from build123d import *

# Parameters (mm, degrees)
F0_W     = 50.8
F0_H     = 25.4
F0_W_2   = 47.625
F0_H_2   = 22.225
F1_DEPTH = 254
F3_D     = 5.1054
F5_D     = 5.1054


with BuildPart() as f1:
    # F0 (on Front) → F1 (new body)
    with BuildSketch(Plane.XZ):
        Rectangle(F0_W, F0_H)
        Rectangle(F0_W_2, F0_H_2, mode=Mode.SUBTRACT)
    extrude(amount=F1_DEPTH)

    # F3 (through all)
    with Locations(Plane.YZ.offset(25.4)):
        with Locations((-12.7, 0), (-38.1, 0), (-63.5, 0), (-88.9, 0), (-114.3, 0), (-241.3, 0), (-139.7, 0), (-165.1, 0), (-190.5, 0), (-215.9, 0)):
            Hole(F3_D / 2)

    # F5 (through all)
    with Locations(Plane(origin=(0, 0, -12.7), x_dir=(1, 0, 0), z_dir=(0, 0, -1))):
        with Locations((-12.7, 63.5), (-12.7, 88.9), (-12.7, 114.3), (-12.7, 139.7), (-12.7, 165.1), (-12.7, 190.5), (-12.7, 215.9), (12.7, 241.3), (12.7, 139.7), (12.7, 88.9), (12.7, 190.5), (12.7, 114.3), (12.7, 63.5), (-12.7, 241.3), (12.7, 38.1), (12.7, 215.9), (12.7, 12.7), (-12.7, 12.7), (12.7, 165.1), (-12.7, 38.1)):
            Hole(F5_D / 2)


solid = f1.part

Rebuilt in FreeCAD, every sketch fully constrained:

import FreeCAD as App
import Part
import Sketcher
Q = App.Units.Quantity

doc = App.newDocument("Part")
body = doc.addObject("PartDesign::Body", "Body")

# Sketch on XZ plane
sketch1 = doc.addObject("Sketcher::SketchObject", "Sketch")
body.addObject(sketch1)
sketch1.AttachmentSupport = (doc.XZ_Plane, [""])
sketch1.MapMode = "FlatFace"
sketch1.addGeometry([
    Part.LineSegment(App.Vector(-25.4, 12.7, 0), App.Vector(-25.4, -12.7, 0)),  # 0
    Part.LineSegment(App.Vector(-25.4, -12.7, 0), App.Vector(25.4, -12.7, 0)),  # 1
    Part.LineSegment(App.Vector(25.4, -12.7, 0), App.Vector(25.4, 12.7, 0)),  # 2
    Part.LineSegment(App.Vector(25.4, 12.7, 0), App.Vector(-25.4, 12.7, 0)),  # 3
    Part.LineSegment(App.Vector(23.8125, -11.1125, 0), App.Vector(-23.8125, -11.1125, 0)),  # 4
    Part.LineSegment(App.Vector(-23.8125, -11.1125, 0), App.Vector(-23.8125, 11.1125, 0)),  # 5
    Part.LineSegment(App.Vector(-23.8125, 11.1125, 0), App.Vector(23.8125, 11.1125, 0)),  # 6
    Part.LineSegment(App.Vector(23.8125, 11.1125, 0), App.Vector(23.8125, -11.1125, 0)),  # 7
], False)
sketch1.addConstraint([
    Sketcher.Constraint("Coincident", 0, 2, 1, 1),
    Sketcher.Constraint("Coincident", 1, 2, 2, 1),
    Sketcher.Constraint("Coincident", 2, 2, 3, 1),
    Sketcher.Constraint("Coincident", 3, 2, 0, 1),
    Sketcher.Constraint("Coincident", 4, 2, 5, 1),
    Sketcher.Constraint("Coincident", 5, 2, 6, 1),
    Sketcher.Constraint("Coincident", 6, 2, 7, 1),
    Sketcher.Constraint("Coincident", 7, 2, 4, 1),
    Sketcher.Constraint("Vertical", 0),
    Sketcher.Constraint("Horizontal", 1),
    Sketcher.Constraint("Vertical", 2),
    Sketcher.Constraint("Horizontal", 3),
    Sketcher.Constraint("Horizontal", 4),
    Sketcher.Constraint("Vertical", 5),
    Sketcher.Constraint("Horizontal", 6),
    Sketcher.Constraint("Vertical", 7),
    Sketcher.Constraint("Symmetric", 0, 2, 2, 2, -1, 1),
    Sketcher.Constraint("Symmetric", 4, 2, 6, 2, -1, 1),
    Sketcher.Constraint("DistanceX", 1, 1, 1, 2, Q("2 in")),
    Sketcher.Constraint("DistanceY", 0, 2, 0, 1, Q("1 in")),
    Sketcher.Constraint("DistanceX", 4, 2, 4, 1, Q("1.875 in")),
    Sketcher.Constraint("DistanceY", 5, 1, 5, 2, Q("0.875 in")),
])
pad1 = doc.addObject("PartDesign::Pad", "Pad")
body.addObject(pad1)
pad1.Profile = sketch1
pad1.Length = Q("10 in")

# Sketch on YZ plane
sketch2 = doc.addObject("Sketcher::SketchObject", "Sketch001")
body.addObject(sketch2)
sketch2.AttachmentSupport = (doc.YZ_Plane, [""])
sketch2.MapMode = "FlatFace"
sketch2.AttachmentOffset = App.Placement(App.Vector(0, 0, 1 * 25.4), App.Rotation())
sketch2.addGeometry([
    Part.Circle(App.Vector(-12.7, 0, 0), App.Vector(0, 0, 1), 2.5527),  # 0
    Part.Circle(App.Vector(-38.1, 0, 0), App.Vector(0, 0, 1), 2.5527),  # 1
    Part.Circle(App.Vector(-63.5, 0, 0), App.Vector(0, 0, 1), 2.5527),  # 2
    Part.Circle(App.Vector(-88.9, 0, 0), App.Vector(0, 0, 1), 2.5527),  # 3
    Part.Circle(App.Vector(-114.3, 0, 0), App.Vector(0, 0, 1), 2.5527),  # 4
    Part.Circle(App.Vector(-241.3, 0, 0), App.Vector(0, 0, 1), 2.5527),  # 5
    Part.Circle(App.Vector(-139.7, 0, 0), App.Vector(0, 0, 1), 2.5527),  # 6
    Part.Circle(App.Vector(-165.1, 0, 0), App.Vector(0, 0, 1), 2.5527),  # 7
    Part.Circle(App.Vector(-190.5, 0, 0), App.Vector(0, 0, 1), 2.5527),  # 8
    Part.Circle(App.Vector(-215.9, 0, 0), App.Vector(0, 0, 1), 2.5527),  # 9
], False)
sketch2.addConstraint([
    Sketcher.Constraint("Equal", 0, 1),
    Sketcher.Constraint("Equal", 1, 2),
    Sketcher.Constraint("Equal", 2, 3),
    Sketcher.Constraint("Equal", 3, 4),
    Sketcher.Constraint("Equal", 4, 5),
    Sketcher.Constraint("Equal", 5, 6),
    Sketcher.Constraint("Equal", 6, 7),
    Sketcher.Constraint("Equal", 7, 8),
    Sketcher.Constraint("Equal", 8, 9),
    Sketcher.Constraint("PointOnObject", 0, 3, -1),
    Sketcher.Constraint("PointOnObject", 1, 3, -1),
    Sketcher.Constraint("PointOnObject", 2, 3, -1),
    Sketcher.Constraint("PointOnObject", 3, 3, -1),
    Sketcher.Constraint("PointOnObject", 4, 3, -1),
    Sketcher.Constraint("PointOnObject", 5, 3, -1),
    Sketcher.Constraint("PointOnObject", 6, 3, -1),
    Sketcher.Constraint("PointOnObject", 7, 3, -1),
    Sketcher.Constraint("PointOnObject", 8, 3, -1),
    Sketcher.Constraint("PointOnObject", 9, 3, -1),
    Sketcher.Constraint("Diameter", 0, Q("0.201 in")),
    Sketcher.Constraint("DistanceX", 1, 3, 0, 3, Q("1 in")),
    Sketcher.Constraint("DistanceX", 2, 3, 1, 3, Q("1 in")),
    Sketcher.Constraint("DistanceX", 3, 3, 2, 3, Q("1 in")),
    Sketcher.Constraint("DistanceX", 4, 3, 3, 3, Q("1 in")),
    Sketcher.Constraint("DistanceX", 5, 3, 4, 3, Q("5 in")),
    Sketcher.Constraint("DistanceX", 6, 3, 4, 3, Q("1 in")),
    Sketcher.Constraint("DistanceX", 7, 3, 6, 3, Q("1 in")),
    Sketcher.Constraint("DistanceX", 8, 3, 7, 3, Q("1 in")),
    Sketcher.Constraint("DistanceX", 5, 3, 9, 3, Q("1 in")),
    Sketcher.Constraint("DistanceX", 0, 3, -1, 1, Q("0.5 in")),
])
doc.recompute()
hole = doc.addObject("PartDesign::Hole", "Hole")
body.addObject(hole)
hole.Profile = sketch2
hole.ThreadType = "None"
hole.Diameter = Q("0.201 in")
hole.DepthType = "ThroughAll"

# Sketch on XY plane
sketch3 = doc.addObject("Sketcher::SketchObject", "Sketch002")
body.addObject(sketch3)
sketch3.AttachmentSupport = (doc.XY_Plane, [""])
sketch3.MapMode = "FlatFace"
sketch3.AttachmentOffset = App.Placement(App.Vector(0, 0, -0.5 * 25.4), App.Rotation())
sketch3.addGeometry([
    Part.Circle(App.Vector(-12.7, -63.5, 0), App.Vector(0, 0, 1), 2.5527),  # 0
    Part.Circle(App.Vector(-12.7, -88.9, 0), App.Vector(0, 0, 1), 2.5527),  # 1
    Part.Circle(App.Vector(-12.7, -114.3, 0), App.Vector(0, 0, 1), 2.5527),  # 2
    Part.Circle(App.Vector(-12.7, -139.7, 0), App.Vector(0, 0, 1), 2.5527),  # 3
    Part.Circle(App.Vector(-12.7, -165.1, 0), App.Vector(0, 0, 1), 2.5527),  # 4
    Part.Circle(App.Vector(-12.7, -190.5, 0), App.Vector(0, 0, 1), 2.5527),  # 5
    Part.Circle(App.Vector(-12.7, -215.9, 0), App.Vector(0, 0, 1), 2.5527),  # 6
    Part.Circle(App.Vector(12.7, -241.3, 0), App.Vector(0, 0, 1), 2.5527),  # 7
    Part.Circle(App.Vector(12.7, -139.7, 0), App.Vector(0, 0, 1), 2.5527),  # 8
    Part.Circle(App.Vector(12.7, -88.9, 0), App.Vector(0, 0, 1), 2.5527),  # 9
    Part.Circle(App.Vector(12.7, -190.5, 0), App.Vector(0, 0, 1), 2.5527),  # 10
    Part.Circle(App.Vector(12.7, -114.3, 0), App.Vector(0, 0, 1), 2.5527),  # 11
    Part.Circle(App.Vector(12.7, -63.5, 0), App.Vector(0, 0, 1), 2.5527),  # 12
    Part.Circle(App.Vector(-12.7, -241.3, 0), App.Vector(0, 0, 1), 2.5527),  # 13
    Part.Circle(App.Vector(12.7, -38.1, 0), App.Vector(0, 0, 1), 2.5527),  # 14
    Part.Circle(App.Vector(12.7, -215.9, 0), App.Vector(0, 0, 1), 2.5527),  # 15
    Part.Circle(App.Vector(12.7, -12.7, 0), App.Vector(0, 0, 1), 2.5527),  # 16
    Part.Circle(App.Vector(-12.7, -12.7, 0), App.Vector(0, 0, 1), 2.5527),  # 17
    Part.Circle(App.Vector(12.7, -165.1, 0), App.Vector(0, 0, 1), 2.5527),  # 18
    Part.Circle(App.Vector(-12.7, -38.1, 0), App.Vector(0, 0, 1), 2.5527),  # 19
], False)
sketch3.addConstraint([
    Sketcher.Constraint("Equal", 0, 1),
    Sketcher.Constraint("Equal", 1, 2),
    Sketcher.Constraint("Equal", 2, 3),
    Sketcher.Constraint("Equal", 3, 4),
    Sketcher.Constraint("Equal", 4, 5),
    Sketcher.Constraint("Equal", 5, 6),
    Sketcher.Constraint("Equal", 6, 7),
    Sketcher.Constraint("Equal", 7, 8),
    Sketcher.Constraint("Equal", 8, 9),
    Sketcher.Constraint("Equal", 9, 10),
    Sketcher.Constraint("Equal", 10, 11),
    Sketcher.Constraint("Equal", 11, 12),
    Sketcher.Constraint("Equal", 12, 13),
    Sketcher.Constraint("Equal", 13, 14),
    Sketcher.Constraint("Equal", 14, 15),
    Sketcher.Constraint("Equal", 15, 16),
    Sketcher.Constraint("Equal", 16, 17),
    Sketcher.Constraint("Equal", 17, 18),
    Sketcher.Constraint("Equal", 18, 19),
    Sketcher.Constraint("Symmetric", 3, 3, 8, 3, -2),
    Sketcher.Constraint("Symmetric", 1, 3, 9, 3, -2),
    Sketcher.Constraint("Symmetric", 5, 3, 10, 3, -2),
    Sketcher.Constraint("Symmetric", 2, 3, 11, 3, -2),
    Sketcher.Constraint("Symmetric", 0, 3, 12, 3, -2),
    Sketcher.Constraint("Symmetric", 7, 3, 13, 3, -2),
    Sketcher.Constraint("Symmetric", 6, 3, 15, 3, -2),
    Sketcher.Constraint("Symmetric", 16, 3, 17, 3, -2),
    Sketcher.Constraint("Symmetric", 4, 3, 18, 3, -2),
    Sketcher.Constraint("Symmetric", 14, 3, 19, 3, -2),
    Sketcher.Constraint("Vertical", 0, 3, 1, 3),
    Sketcher.Constraint("Vertical", 1, 3, 2, 3),
    Sketcher.Constraint("Vertical", 2, 3, 3, 3),
    Sketcher.Constraint("Vertical", 3, 3, 4, 3),
    Sketcher.Constraint("Vertical", 4, 3, 5, 3),
    Sketcher.Constraint("Vertical", 5, 3, 6, 3),
    Sketcher.Constraint("Vertical", 7, 3, 8, 3),
    Sketcher.Constraint("Vertical", 12, 3, 14, 3),
    Sketcher.Constraint("Vertical", 15, 3, 16, 3),
    Sketcher.Constraint("Diameter", 0, Q("0.201 in")),
    Sketcher.Constraint("DistanceY", 1, 3, 0, 3, Q("1 in")),
    Sketcher.Constraint("DistanceY", 2, 3, 1, 3, Q("1 in")),
    Sketcher.Constraint("DistanceY", 3, 3, 2, 3, Q("1 in")),
    Sketcher.Constraint("DistanceY", 4, 3, 3, 3, Q("1 in")),
    Sketcher.Constraint("DistanceY", 5, 3, 4, 3, Q("1 in")),
    Sketcher.Constraint("DistanceY", 6, 3, 5, 3, Q("1 in")),
    Sketcher.Constraint("DistanceX", 6, 3, 7, 3, Q("1 in")),
    Sketcher.Constraint("DistanceY", 7, 3, 6, 3, Q("1 in")),
    Sketcher.Constraint("DistanceY", 12, 3, 14, 3, Q("1 in")),
    Sketcher.Constraint("DistanceY", 14, 3, 16, 3, Q("1 in")),
    Sketcher.Constraint("DistanceY", 0, 3, -1, 1, Q("2.5 in")),
])
doc.recompute()
hole2 = doc.addObject("PartDesign::Hole", "Hole001")
body.addObject(hole2)
hole2.Profile = sketch3
hole2.ThreadType = "None"
hole2.Diameter = Q("0.201 in")
hole2.DepthType = "ThroughAll"
hole2.Reversed = True

doc.recompute()
